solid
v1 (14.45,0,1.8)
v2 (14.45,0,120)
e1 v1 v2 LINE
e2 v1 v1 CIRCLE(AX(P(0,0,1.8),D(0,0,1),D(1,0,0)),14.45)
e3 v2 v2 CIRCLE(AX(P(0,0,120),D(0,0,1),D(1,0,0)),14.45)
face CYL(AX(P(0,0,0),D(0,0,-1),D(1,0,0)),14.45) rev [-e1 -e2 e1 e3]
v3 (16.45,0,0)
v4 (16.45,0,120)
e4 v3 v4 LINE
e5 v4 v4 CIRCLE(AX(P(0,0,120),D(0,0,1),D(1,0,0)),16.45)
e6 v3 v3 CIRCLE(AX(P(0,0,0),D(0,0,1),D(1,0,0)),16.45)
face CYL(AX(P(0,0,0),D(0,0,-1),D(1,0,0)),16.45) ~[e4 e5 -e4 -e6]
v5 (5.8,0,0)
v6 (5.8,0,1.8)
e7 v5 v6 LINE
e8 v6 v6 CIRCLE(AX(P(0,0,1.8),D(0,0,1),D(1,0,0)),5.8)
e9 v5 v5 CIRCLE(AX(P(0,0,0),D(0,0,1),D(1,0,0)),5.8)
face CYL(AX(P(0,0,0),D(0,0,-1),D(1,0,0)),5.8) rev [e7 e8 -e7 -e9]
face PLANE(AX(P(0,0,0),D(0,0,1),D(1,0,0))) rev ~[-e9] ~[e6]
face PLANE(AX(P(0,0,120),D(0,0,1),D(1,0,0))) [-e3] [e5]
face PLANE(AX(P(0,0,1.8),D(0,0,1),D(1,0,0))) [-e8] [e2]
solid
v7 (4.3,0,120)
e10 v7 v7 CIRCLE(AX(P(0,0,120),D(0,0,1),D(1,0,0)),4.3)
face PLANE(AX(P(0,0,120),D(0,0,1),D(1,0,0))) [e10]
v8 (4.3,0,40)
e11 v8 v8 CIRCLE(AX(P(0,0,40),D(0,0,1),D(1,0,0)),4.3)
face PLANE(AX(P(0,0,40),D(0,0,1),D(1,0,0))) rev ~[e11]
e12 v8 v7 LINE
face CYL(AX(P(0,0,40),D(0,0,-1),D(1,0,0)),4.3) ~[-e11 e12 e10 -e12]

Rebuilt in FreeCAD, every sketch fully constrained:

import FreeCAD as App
import Part
import Sketcher
from FreeCAD import Vector

doc = App.newDocument("Part")
body = doc.addObject("PartDesign::Body", "Body")

# Sketch on XY plane
sketch1 = body.newObject("Sketcher::SketchObject", "Sketch")
sketch1.AttachmentSupport = (doc.getObject("XY_Plane"), [""])
sketch1.MapMode = "FlatFace"
sketch1.addGeometry([
    Part.Circle(Vector(0, 0, 0), Vector(0, 0, 1), 16.45),
    Part.Circle(Vector(0, 0, 0), Vector(0, 0, 1), 14.45),
], False)
sketch1.addConstraint([
    Sketcher.Constraint("Coincident", 0, 3, -1, 1),
    Sketcher.Constraint("Coincident", 1, 3, -1, 1),
    Sketcher.Constraint("Diameter", 0, 32.9),
    Sketcher.Constraint("Diameter", 1, 28.9),
])
pad1 = body.newObject("PartDesign::Pad", "Pad")
pad1.Profile = sketch1
pad1.Length = 120

# Sketch on XY plane
sketch2 = body.newObject("Sketcher::SketchObject", "Sketch001")
sketch2.AttachmentSupport = (doc.getObject("XY_Plane"), [""])
sketch2.MapMode = "FlatFace"
sketch2.addGeometry([
    Part.Circle(Vector(0, 0, 0), Vector(0, 0, 1), 14.45),
    Part.Circle(Vector(0, 0, 0), Vector(0, 0, 1), 5.8),
], False)
sketch2.addConstraint([
    Sketcher.Constraint("Coincident", 0, 3, -1, 1),
    Sketcher.Constraint("Coincident", 1, 3, -1, 1),
    Sketcher.Constraint("Diameter", 0, 28.9),
    Sketcher.Constraint("Diameter", 1, 11.6),
])
pad2 = body.newObject("PartDesign::Pad", "Pad001")
pad2.Profile = sketch2
pad2.Length = 1.8
body2 = doc.addObject("PartDesign::Body", "Body001")

# Sketch on XY plane
sketch3 = body2.newObject("Sketcher::SketchObject", "Sketch002")
sketch3.AttachmentSupport = (doc.getObject("XY_Plane001"), [""])
sketch3.MapMode = "FlatFace"
sketch3.AttachmentOffset = App.Placement(Vector(0, 0, 40), App.Rotation())
sketch3.addGeometry(Part.Circle(Vector(0, 0, 0), Vector(0, 0, 1), 4.3), False)
sketch3.addConstraint([
    Sketcher.Constraint("Coincident", 0, 3, -1, 1),
    Sketcher.Constraint("Diameter", 0, 8.6),
])
pad3 = body2.newObject("PartDesign::Pad", "Pad002")
pad3.Profile = sketch3
pad3.Length = 80

doc.recompute()
